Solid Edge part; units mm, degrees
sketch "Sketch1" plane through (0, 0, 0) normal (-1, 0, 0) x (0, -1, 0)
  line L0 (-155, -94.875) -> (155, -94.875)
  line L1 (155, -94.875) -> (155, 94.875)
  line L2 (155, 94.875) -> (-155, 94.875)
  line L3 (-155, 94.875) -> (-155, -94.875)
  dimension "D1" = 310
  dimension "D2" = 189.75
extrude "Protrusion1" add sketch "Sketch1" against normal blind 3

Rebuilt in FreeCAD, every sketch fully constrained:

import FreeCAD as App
import Part
import Sketcher
from FreeCAD import Vector
Q = App.Units.Quantity

doc = App.newDocument("Part")
body = doc.addObject("PartDesign::Body", "Body")

sketch1 = body.newObject("Sketcher::SketchObject", "Sketch")
sketch1.AttachmentSupport = (doc.getObject("YZ_Plane"), [""])
sketch1.MapMode = "FlatFace"
sketch1.addGeometry([
    Part.LineSegment(Vector(155, 94.875, 0), Vector(155, -94.875, 0)),
    Part.LineSegment(Vector(155, -94.875, 0), Vector(-155, -94.875, 0)),
    Part.LineSegment(Vector(-155, -94.875, 0), Vector(-155, 94.875, 0)),
    Part.LineSegment(Vector(-155, 94.875, 0), Vector(155, 94.875, 0)),
], False)
sketch1.addConstraint([
    Sketcher.Constraint("Coincident", 0, 2, 1, 1),
    Sketcher.Constraint("Coincident", 1, 2, 2, 1),
    Sketcher.Constraint("Coincident", 2, 2, 3, 1),
    Sketcher.Constraint("Coincident", 3, 2, 0, 1),
    Sketcher.Constraint("Vertical", 0),
    Sketcher.Constraint("Horizontal", 1),
    Sketcher.Constraint("Vertical", 2),
    Sketcher.Constraint("Horizontal", 3),
    Sketcher.Constraint("Symmetric", 0, 2, 2, 2, -1, 1),
    Sketcher.Constraint("DistanceX", 1, 2, 1, 1, Q("310 mm")),
    Sketcher.Constraint("DistanceY", 0, 2, 0, 1, Q("189.75 mm")),
])
pad1 = body.newObject("PartDesign::Pad", "Pad")
pad1.Profile = sketch1
pad1.Length = 3

doc.recompute()
